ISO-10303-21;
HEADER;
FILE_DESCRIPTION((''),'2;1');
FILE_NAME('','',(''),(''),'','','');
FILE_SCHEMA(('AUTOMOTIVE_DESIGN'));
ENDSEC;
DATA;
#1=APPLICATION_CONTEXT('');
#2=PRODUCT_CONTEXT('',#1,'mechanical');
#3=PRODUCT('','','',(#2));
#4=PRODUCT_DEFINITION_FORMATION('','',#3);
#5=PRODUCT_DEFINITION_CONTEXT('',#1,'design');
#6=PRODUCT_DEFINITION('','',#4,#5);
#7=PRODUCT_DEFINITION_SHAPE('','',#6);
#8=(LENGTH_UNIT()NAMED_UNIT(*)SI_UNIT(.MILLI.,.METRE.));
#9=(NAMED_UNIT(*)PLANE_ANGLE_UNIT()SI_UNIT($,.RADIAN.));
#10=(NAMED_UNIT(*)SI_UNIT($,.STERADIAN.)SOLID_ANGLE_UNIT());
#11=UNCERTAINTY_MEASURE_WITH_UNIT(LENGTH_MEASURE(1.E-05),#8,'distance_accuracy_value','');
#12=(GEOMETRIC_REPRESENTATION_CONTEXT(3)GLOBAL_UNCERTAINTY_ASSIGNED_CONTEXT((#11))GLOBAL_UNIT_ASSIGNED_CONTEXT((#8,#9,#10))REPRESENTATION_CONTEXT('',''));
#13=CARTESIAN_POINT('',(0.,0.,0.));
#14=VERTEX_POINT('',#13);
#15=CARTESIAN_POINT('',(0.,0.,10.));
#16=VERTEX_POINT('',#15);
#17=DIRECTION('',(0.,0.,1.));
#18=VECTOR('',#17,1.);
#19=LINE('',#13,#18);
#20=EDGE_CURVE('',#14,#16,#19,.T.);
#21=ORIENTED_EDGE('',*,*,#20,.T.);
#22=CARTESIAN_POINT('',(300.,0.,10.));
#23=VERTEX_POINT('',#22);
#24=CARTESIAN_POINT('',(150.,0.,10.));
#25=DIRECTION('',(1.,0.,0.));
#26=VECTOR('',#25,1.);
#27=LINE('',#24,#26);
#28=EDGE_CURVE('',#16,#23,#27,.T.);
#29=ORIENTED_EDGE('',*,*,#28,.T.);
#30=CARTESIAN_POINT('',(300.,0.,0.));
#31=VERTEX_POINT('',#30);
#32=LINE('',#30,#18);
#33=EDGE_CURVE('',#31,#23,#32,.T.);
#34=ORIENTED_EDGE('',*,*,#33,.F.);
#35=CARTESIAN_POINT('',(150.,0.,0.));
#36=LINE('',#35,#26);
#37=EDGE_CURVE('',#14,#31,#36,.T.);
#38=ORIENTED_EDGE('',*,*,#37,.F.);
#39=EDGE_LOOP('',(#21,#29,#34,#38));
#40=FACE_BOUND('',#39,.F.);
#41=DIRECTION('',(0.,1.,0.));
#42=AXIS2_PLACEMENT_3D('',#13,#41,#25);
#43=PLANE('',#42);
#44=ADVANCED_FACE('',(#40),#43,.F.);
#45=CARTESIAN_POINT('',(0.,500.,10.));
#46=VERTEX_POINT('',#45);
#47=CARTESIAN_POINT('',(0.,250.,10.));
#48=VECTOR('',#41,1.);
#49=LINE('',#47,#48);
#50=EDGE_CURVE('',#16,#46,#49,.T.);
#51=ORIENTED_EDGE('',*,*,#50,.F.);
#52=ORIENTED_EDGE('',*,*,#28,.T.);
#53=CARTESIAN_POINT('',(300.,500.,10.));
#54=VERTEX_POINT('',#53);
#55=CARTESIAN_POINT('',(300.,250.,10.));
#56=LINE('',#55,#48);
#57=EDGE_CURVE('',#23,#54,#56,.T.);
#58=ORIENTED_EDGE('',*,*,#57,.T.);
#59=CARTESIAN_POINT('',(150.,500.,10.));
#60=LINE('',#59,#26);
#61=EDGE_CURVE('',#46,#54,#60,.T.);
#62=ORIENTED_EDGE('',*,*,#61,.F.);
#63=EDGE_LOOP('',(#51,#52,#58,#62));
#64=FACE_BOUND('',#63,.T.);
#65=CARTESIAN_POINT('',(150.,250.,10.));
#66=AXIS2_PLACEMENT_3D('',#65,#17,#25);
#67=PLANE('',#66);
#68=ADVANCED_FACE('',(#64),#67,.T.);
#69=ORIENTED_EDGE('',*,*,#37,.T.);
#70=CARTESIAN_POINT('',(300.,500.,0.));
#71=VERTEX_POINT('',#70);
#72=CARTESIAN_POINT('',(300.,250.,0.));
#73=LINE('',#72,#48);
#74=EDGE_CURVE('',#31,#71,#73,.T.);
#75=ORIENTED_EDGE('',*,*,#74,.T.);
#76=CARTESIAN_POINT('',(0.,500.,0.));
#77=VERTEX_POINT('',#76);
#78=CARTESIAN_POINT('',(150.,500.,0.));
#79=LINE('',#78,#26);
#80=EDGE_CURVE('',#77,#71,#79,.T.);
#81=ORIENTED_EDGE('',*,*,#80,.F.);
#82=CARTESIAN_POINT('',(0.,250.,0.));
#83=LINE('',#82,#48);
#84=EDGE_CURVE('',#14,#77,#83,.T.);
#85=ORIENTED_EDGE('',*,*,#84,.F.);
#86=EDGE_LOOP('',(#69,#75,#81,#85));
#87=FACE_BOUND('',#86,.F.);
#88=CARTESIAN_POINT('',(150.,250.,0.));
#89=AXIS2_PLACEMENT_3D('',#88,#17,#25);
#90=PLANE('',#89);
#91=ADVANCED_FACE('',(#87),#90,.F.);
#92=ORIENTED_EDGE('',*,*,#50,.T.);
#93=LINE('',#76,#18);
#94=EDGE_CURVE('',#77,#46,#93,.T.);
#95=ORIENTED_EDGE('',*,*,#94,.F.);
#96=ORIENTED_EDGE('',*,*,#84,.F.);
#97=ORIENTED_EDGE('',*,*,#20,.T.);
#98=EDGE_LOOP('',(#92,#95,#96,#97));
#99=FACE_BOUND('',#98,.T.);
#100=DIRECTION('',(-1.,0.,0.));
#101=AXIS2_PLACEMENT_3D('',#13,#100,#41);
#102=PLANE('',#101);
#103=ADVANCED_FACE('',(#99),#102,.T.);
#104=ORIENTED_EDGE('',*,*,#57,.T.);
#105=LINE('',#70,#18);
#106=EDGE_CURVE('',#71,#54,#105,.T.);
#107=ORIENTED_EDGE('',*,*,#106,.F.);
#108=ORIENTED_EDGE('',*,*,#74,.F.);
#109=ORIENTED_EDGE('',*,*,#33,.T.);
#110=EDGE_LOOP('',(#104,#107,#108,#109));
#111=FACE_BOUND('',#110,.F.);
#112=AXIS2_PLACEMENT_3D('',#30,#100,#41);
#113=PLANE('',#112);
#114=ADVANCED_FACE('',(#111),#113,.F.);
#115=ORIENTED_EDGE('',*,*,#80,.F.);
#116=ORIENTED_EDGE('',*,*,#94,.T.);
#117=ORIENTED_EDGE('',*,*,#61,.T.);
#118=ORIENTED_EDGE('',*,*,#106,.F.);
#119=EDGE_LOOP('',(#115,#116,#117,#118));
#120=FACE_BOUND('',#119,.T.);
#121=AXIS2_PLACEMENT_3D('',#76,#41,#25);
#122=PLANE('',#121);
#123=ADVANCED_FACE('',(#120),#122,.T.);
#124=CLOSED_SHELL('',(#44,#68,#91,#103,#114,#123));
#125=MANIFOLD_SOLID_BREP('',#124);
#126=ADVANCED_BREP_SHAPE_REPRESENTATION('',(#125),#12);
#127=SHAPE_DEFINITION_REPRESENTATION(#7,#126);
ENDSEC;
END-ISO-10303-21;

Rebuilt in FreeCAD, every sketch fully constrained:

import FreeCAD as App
import Part
import Sketcher
from FreeCAD import Vector


def add_polygon(sketch, points):
    """Adds a closed chain of lines whose ends are joined by coincident constraints."""
    first, n = sketch.GeometryCount, len(points)
    for a, b in zip(points, points[1:] + points[:1]):
        sketch.addGeometry(Part.LineSegment(App.Vector(*a, 0), App.Vector(*b, 0)), False)
    for i in range(n):
        sketch.addConstraint(Sketcher.Constraint("Coincident", first + i, 2, first + (i + 1) % n, 1))

doc = App.newDocument("Part")
params = doc.addObject("Spreadsheet::Sheet", "Params")
for row, (alias, value) in enumerate([
    ("sketch1_width", "300 mm"),
    ("sketch1_height", "500 mm"),
    ("pad1_length", "10 mm"),
], start=1):
    params.set(f"A{row}", alias)
    params.set(f"B{row}", "=" + value)
    params.setAlias(f"B{row}", alias)

body = doc.addObject("PartDesign::Body", "Body")

# Sketch on XY plane
sketch1 = doc.addObject("Sketcher::SketchObject", "Sketch")
body.addObject(sketch1)
sketch1.AttachmentSupport = (doc.XY_Plane, [""])
sketch1.MapMode = "FlatFace"
add_polygon(sketch1, [(0, 500), (0, 0), (300, 0), (300, 500)])  # lines 0-3
sketch1.addConstraint([
    Sketcher.Constraint("Vertical", 0),
    Sketcher.Constraint("Horizontal", 1),
    Sketcher.Constraint("Vertical", 2),
    Sketcher.Constraint("Horizontal", 3),
    Sketcher.Constraint("Coincident", 0, 2, -1, 1),
    Sketcher.Constraint("DistanceX", 1, 1, 1, 2, 300.0),
    Sketcher.Constraint("DistanceY", 0, 2, 0, 1, 500.0),
])
sketch1.setExpression("Constraints[9]", "Params.sketch1_width")
sketch1.setExpression("Constraints[10]", "Params.sketch1_height")
pad1 = doc.addObject("PartDesign::Pad", "Pad")
body.addObject(pad1)
pad1.Profile = sketch1
pad1.setExpression("Length", "Params.pad1_length")

doc.recompute()
